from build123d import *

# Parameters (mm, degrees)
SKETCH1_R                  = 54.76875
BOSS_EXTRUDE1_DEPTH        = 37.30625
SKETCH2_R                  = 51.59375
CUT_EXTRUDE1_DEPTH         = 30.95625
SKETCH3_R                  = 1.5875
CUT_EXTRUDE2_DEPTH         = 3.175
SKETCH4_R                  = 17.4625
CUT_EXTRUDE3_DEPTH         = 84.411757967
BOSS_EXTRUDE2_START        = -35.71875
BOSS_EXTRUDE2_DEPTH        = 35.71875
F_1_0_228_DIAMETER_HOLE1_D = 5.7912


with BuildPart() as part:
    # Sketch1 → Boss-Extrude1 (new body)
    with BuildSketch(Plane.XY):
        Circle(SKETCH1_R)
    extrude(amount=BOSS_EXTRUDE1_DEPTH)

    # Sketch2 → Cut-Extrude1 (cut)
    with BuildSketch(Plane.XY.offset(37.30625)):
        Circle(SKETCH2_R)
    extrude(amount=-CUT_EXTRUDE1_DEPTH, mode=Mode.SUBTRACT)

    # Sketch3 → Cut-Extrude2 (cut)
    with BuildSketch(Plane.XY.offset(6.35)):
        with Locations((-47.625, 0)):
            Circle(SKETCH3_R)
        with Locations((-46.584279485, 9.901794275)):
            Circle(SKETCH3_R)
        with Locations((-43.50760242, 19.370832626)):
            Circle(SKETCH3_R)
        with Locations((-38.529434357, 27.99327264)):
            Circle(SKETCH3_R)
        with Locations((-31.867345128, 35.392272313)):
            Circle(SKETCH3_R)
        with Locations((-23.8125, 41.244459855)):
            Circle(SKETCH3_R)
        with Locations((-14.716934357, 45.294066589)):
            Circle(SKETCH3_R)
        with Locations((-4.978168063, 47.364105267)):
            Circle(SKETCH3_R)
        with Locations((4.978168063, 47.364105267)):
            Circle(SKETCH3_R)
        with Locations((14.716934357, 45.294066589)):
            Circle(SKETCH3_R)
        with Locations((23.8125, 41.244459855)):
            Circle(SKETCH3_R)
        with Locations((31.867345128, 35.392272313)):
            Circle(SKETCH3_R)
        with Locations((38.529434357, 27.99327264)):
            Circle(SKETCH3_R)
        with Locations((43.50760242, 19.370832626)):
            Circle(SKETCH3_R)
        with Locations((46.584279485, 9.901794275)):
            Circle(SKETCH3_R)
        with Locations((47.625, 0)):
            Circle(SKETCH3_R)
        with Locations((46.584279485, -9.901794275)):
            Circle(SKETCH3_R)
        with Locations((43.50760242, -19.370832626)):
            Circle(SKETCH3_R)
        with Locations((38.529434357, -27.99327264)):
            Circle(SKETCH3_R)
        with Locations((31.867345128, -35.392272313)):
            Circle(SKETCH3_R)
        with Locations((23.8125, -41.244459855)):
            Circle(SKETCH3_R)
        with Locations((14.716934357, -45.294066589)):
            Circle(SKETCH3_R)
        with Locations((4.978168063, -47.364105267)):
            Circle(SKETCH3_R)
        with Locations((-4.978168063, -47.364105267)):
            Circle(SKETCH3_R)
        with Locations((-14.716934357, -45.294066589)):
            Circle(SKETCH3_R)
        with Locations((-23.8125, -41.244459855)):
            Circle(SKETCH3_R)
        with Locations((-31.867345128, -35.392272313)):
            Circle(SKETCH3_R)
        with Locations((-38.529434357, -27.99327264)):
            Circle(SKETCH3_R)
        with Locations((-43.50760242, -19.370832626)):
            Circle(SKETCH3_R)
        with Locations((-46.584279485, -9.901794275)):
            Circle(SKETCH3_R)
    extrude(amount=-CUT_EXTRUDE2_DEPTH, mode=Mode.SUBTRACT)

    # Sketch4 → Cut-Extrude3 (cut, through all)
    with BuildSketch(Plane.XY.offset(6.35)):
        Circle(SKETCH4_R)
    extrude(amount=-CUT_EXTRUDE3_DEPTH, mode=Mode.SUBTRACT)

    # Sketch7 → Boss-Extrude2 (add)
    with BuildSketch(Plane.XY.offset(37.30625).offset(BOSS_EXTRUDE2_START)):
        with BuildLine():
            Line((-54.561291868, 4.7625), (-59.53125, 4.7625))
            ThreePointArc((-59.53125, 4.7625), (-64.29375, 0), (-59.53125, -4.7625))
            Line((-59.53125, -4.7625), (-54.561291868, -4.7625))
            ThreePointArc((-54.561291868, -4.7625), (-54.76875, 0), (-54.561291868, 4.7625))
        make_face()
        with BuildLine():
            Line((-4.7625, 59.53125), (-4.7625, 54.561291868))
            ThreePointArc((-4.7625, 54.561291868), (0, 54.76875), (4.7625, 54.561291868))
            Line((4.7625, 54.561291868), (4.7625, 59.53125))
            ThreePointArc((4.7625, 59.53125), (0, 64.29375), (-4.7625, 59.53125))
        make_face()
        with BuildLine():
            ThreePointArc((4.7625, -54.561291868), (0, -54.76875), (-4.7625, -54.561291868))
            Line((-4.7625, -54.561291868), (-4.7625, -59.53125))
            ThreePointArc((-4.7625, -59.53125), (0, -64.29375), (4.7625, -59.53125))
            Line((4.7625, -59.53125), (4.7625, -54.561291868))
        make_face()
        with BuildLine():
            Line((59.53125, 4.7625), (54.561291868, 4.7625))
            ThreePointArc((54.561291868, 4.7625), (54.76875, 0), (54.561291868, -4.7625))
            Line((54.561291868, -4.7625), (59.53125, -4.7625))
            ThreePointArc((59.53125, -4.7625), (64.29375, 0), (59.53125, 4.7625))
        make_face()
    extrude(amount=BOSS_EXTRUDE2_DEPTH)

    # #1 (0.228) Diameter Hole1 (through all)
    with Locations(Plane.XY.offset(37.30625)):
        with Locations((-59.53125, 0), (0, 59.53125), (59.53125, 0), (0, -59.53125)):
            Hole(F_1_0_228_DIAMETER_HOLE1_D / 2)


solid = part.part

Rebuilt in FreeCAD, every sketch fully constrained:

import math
import FreeCAD as App
import Part
import Sketcher

V = App.Vector
Q = App.Units.Quantity

doc = App.newDocument("Part")
body = doc.addObject("PartDesign::Body", "Body")

# Sketch on XY plane
sketch1 = body.newObject("Sketcher::SketchObject", "Sketch")
sketch1.AttachmentSupport = (doc.getObject("XY_Plane"), [""])
sketch1.MapMode = "FlatFace"
sketch1.addGeometry(Part.Circle(V(0, 0, 0), V(0, 0, 1), 55), False)
sketch1.addConstraint(Sketcher.Constraint("Coincident", 0, 3, -1, 1))
sketch1.addConstraint(Sketcher.Constraint("Diameter", 0, Q("4.3125 in")))
pad1 = body.newObject("PartDesign::Pad", "Pad")
pad1.Profile = sketch1
pad1.Length = Q("1.46875 in")

# Sketch on XY plane
sketch2 = body.newObject("Sketcher::SketchObject", "Sketch001")
sketch2.AttachmentSupport = (doc.getObject("XY_Plane"), [""])
sketch2.MapMode = "FlatFace"
sketch2.AttachmentOffset = App.Placement(V(0, 0, 1.46875 * 25.4), App.Rotation())
sketch2.addGeometry(Part.Circle(V(0, 0, 0), V(0, 0, 1), 52), False)
sketch2.addConstraint(Sketcher.Constraint("Coincident", 0, 3, -1, 1))
sketch2.addConstraint(Sketcher.Constraint("Diameter", 0, Q("4.0625 in")))
pocket1 = body.newObject("PartDesign::Pocket", "Pocket")
pocket1.Profile = sketch2
pocket1.Length = Q("1.21875 in")

# Sketch on XY plane
sketch3 = body.newObject("Sketcher::SketchObject", "Sketch002")
sketch3.AttachmentSupport = (doc.getObject("XY_Plane"), [""])
sketch3.MapMode = "FlatFace"
sketch3.AttachmentOffset = App.Placement(V(0, 0, 0.25 * 25.4), App.Rotation())
sketch3.addGeometry(Part.Circle(V(-47.6, 0, 0), V(0, 0, 1), 1.6), False)
sketch3.addGeometry(Part.Circle(V(-46.6, 9.9, 0), V(0, 0, 1), 1.6), False)
sketch3.addGeometry(Part.Circle(V(-43.5, 19.4, 0), V(0, 0, 1), 1.6), False)
sketch3.addGeometry(Part.Circle(V(-38.5, 28, 0), V(0, 0, 1), 1.6), False)
sketch3.addGeometry(Part.Circle(V(-31.9, 35.4, 0), V(0, 0, 1), 1.6), False)
sketch3.addGeometry(Part.Circle(V(-23.8, 41.2, 0), V(0, 0, 1), 1.6), False)
sketch3.addGeometry(Part.Circle(V(-14.7, 45.3, 0), V(0, 0, 1), 1.6), False)
sketch3.addGeometry(Part.Circle(V(-5, 47.4, 0), V(0, 0, 1), 1.6), False)
sketch3.addGeometry(Part.Circle(V(5, 47.4, 0), V(0, 0, 1), 1.6), False)
sketch3.addGeometry(Part.Circle(V(14.7, 45.3, 0), V(0, 0, 1), 1.6), False)
sketch3.addGeometry(Part.Circle(V(23.8, 41.2, 0), V(0, 0, 1), 1.6), False)
sketch3.addGeometry(Part.Circle(V(31.9, 35.4, 0), V(0, 0, 1), 1.6), False)
sketch3.addGeometry(Part.Circle(V(38.5, 28, 0), V(0, 0, 1), 1.6), False)
sketch3.addGeometry(Part.Circle(V(43.5, 19.4, 0), V(0, 0, 1), 1.6), False)
sketch3.addGeometry(Part.Circle(V(46.6, 9.9, 0), V(0, 0, 1), 1.6), False)
sketch3.addGeometry(Part.Circle(V(47.6, 0, 0), V(0, 0, 1), 1.6), False)
sketch3.addGeometry(Part.Circle(V(46.6, -9.9, 0), V(0, 0, 1), 1.6), False)
sketch3.addGeometry(Part.Circle(V(43.5, -19.4, 0), V(0, 0, 1), 1.6), False)
sketch3.addGeometry(Part.Circle(V(38.5, -28, 0), V(0, 0, 1), 1.6), False)
sketch3.addGeometry(Part.Circle(V(31.9, -35.4, 0), V(0, 0, 1), 1.6), False)
sketch3.addGeometry(Part.Circle(V(23.8, -41.2, 0), V(0, 0, 1), 1.6), False)
sketch3.addGeometry(Part.Circle(V(14.7, -45.3, 0), V(0, 0, 1), 1.6), False)
sketch3.addGeometry(Part.Circle(V(5, -47.4, 0), V(0, 0, 1), 1.6), False)
sketch3.addGeometry(Part.Circle(V(-5, -47.4, 0), V(0, 0, 1), 1.6), False)
sketch3.addGeometry(Part.Circle(V(-14.7, -45.3, 0), V(0, 0, 1), 1.6), False)
sketch3.addGeometry(Part.Circle(V(-23.8, -41.2, 0), V(0, 0, 1), 1.6), False)
sketch3.addGeometry(Part.Circle(V(-31.9, -35.4, 0), V(0, 0, 1), 1.6), False)
sketch3.addGeometry(Part.Circle(V(-38.5, -28, 0), V(0, 0, 1), 1.6), False)
sketch3.addGeometry(Part.Circle(V(-43.5, -19.4, 0), V(0, 0, 1), 1.6), False)
sketch3.addGeometry(Part.Circle(V(-46.6, -9.9, 0), V(0, 0, 1), 1.6), False)
sketch3.addConstraint(Sketcher.Constraint("Equal", 0, 1))
sketch3.addConstraint(Sketcher.Constraint("Equal", 1, 2))
sketch3.addConstraint(Sketcher.Constraint("Equal", 2, 3))
sketch3.addConstraint(Sketcher.Constraint("Equal", 3, 4))
sketch3.addConstraint(Sketcher.Constraint("Equal", 4, 5))
sketch3.addConstraint(Sketcher.Constraint("Equal", 5, 6))
sketch3.addConstraint(Sketcher.Constraint("Equal", 6, 7))
sketch3.addConstraint(Sketcher.Constraint("Equal", 7, 8))
sketch3.addConstraint(Sketcher.Constraint("Equal", 8, 9))
sketch3.addConstraint(Sketcher.Constraint("Equal", 9, 10))
sketch3.addConstraint(Sketcher.Constraint("Equal", 10, 11))
sketch3.addConstraint(Sketcher.Constraint("Equal", 11, 12))
sketch3.addConstraint(Sketcher.Constraint("Equal", 12, 13))
sketch3.addConstraint(Sketcher.Constraint("Equal", 13, 14))
sketch3.addConstraint(Sketcher.Constraint("Equal", 14, 15))
sketch3.addConstraint(Sketcher.Constraint("Equal", 15, 16))
sketch3.addConstraint(Sketcher.Constraint("Equal", 16, 17))
sketch3.addConstraint(Sketcher.Constraint("Equal", 17, 18))
sketch3.addConstraint(Sketcher.Constraint("Equal", 18, 19))
sketch3.addConstraint(Sketcher.Constraint("Equal", 19, 20))
sketch3.addConstraint(Sketcher.Constraint("Equal", 20, 21))
sketch3.addConstraint(Sketcher.Constraint("Equal", 21, 22))
sketch3.addConstraint(Sketcher.Constraint("Equal", 22, 23))
sketch3.addConstraint(Sketcher.Constraint("Equal", 23, 24))
sketch3.addConstraint(Sketcher.Constraint("Equal", 24, 25))
sketch3.addConstraint(Sketcher.Constraint("Equal", 25, 26))
sketch3.addConstraint(Sketcher.Constraint("Equal", 26, 27))
sketch3.addConstraint(Sketcher.Constraint("Equal", 27, 28))
sketch3.addConstraint(Sketcher.Constraint("Equal", 28, 29))
sketch3.addConstraint(Sketcher.Constraint("Symmetric", 0, 3, 15, 3, -1, 1))
sketch3.addConstraint(Sketcher.Constraint("Symmetric", 1, 3, 16, 3, -1, 1))
sketch3.addConstraint(Sketcher.Constraint("Symmetric", 2, 3, 17, 3, -1, 1))
sketch3.addConstraint(Sketcher.Constraint("Symmetric", 3, 3, 18, 3, -1, 1))
sketch3.addConstraint(Sketcher.Constraint("Symmetric", 4, 3, 19, 3, -1, 1))
sketch3.addConstraint(Sketcher.Constraint("Symmetric", 5, 3, 20, 3, -1, 1))
sketch3.addConstraint(Sketcher.Constraint("Symmetric", 6, 3, 21, 3, -1, 1))
sketch3.addConstraint(Sketcher.Constraint("Symmetric", 7, 3, 22, 3, -1, 1))
sketch3.addConstraint(Sketcher.Constraint("Symmetric", 8, 3, 23, 3, -1, 1))
sketch3.addConstraint(Sketcher.Constraint("Symmetric", 9, 3, 24, 3, -1, 1))
sketch3.addConstraint(Sketcher.Constraint("Symmetric", 10, 3, 25, 3, -1, 1))
sketch3.addConstraint(Sketcher.Constraint("Symmetric", 11, 3, 26, 3, -1, 1))
sketch3.addConstraint(Sketcher.Constraint("Symmetric", 12, 3, 27, 3, -1, 1))
sketch3.addConstraint(Sketcher.Constraint("Symmetric", 13, 3, 28, 3, -1, 1))
sketch3.addConstraint(Sketcher.Constraint("Symmetric", 14, 3, 29, 3, -1, 1))
sketch3.addConstraint(Sketcher.Constraint("Symmetric", 7, 3, 8, 3, -2))
sketch3.addConstraint(Sketcher.Constraint("Symmetric", 6, 3, 9, 3, -2))
sketch3.addConstraint(Sketcher.Constraint("Symmetric", 5, 3, 10, 3, -2))
sketch3.addConstraint(Sketcher.Constraint("Symmetric", 4, 3, 11, 3, -2))
sketch3.addConstraint(Sketcher.Constraint("Symmetric", 3, 3, 12, 3, -2))
sketch3.addConstraint(Sketcher.Constraint("Symmetric", 2, 3, 13, 3, -2))
sketch3.addConstraint(Sketcher.Constraint("Symmetric", 1, 3, 14, 3, -2))
sketch3.addConstraint(Sketcher.Constraint("PointOnObject", 0, 3, -1))
sketch3.addConstraint(Sketcher.Constraint("Diameter", 0, Q("0.125 in")))
sketch3.addConstraint(Sketcher.Constraint("DistanceX", 0, 3, -1, 1, Q("1.875 in")))
sketch3.addConstraint(Sketcher.Constraint("DistanceX", 5, 3, -1, 1, Q("0.9375 in")))
sketch3.addConstraint(Sketcher.Constraint("DistanceX", 3, 3, 6, 3, Q("0.9375 in")))
sketch3.addConstraint(Sketcher.Constraint("DistanceY", 3, 3, 4, 3, 7.399))
sketch3.addConstraint(Sketcher.Constraint("DistanceX", 1, 3, -1, 1, 46.584279))
sketch3.addConstraint(Sketcher.Constraint("DistanceY", -1, 1, 5, 3, 41.24446))
sketch3.addConstraint(Sketcher.Constraint("DistanceX", 7, 3, -1, 1, 4.978168))
sketch3.addConstraint(Sketcher.Constraint("DistanceY", 1, 3, 2, 3, 9.469038))
sketch3.addConstraint(Sketcher.Constraint("DistanceX", 2, 3, 3, 3, 4.978168))
sketch3.addConstraint(Sketcher.Constraint("DistanceY", 2, 3, 3, 3, 8.62244))
sketch3.addConstraint(Sketcher.Constraint("DistanceX", 3, 3, 4, 3, 6.662089))
sketch3.addConstraint(Sketcher.Constraint("DistanceY", 6, 3, 7, 3, 2.070039))
sketch3.addConstraint(Sketcher.Constraint("DistanceX", 6, 3, 9, 3, 29.433869))
sketch3.addConstraint(Sketcher.Constraint("DistanceY", 16, 3, 14, 3, 19.803589))
sketch3.addConstraint(Sketcher.Constraint("DistanceY", -1, 1, 6, 3, 45.294067))
pocket2 = body.newObject("PartDesign::Pocket", "Pocket001")
pocket2.Profile = sketch3
pocket2.Length = Q("0.125 in")

# Sketch on XY plane
sketch4 = body.newObject("Sketcher::SketchObject", "Sketch003")
sketch4.AttachmentSupport = (doc.getObject("XY_Plane"), [""])
sketch4.MapMode = "FlatFace"
sketch4.AttachmentOffset = App.Placement(V(0, 0, 0.25 * 25.4), App.Rotation())
sketch4.addGeometry(Part.Circle(V(0, 0, 0), V(0, 0, 1), 17), False)
sketch4.addConstraint(Sketcher.Constraint("Coincident", 0, 3, -1, 1))
sketch4.addConstraint(Sketcher.Constraint("Diameter", 0, Q("1.375 in")))
pocket3 = body.newObject("PartDesign::Pocket", "Pocket002")
pocket3.Profile = sketch4
pocket3.Type = "ThroughAll"

# Sketch on XY plane
sketch5 = body.newObject("Sketcher::SketchObject", "Sketch004")
sketch5.AttachmentSupport = (doc.getObject("XY_Plane"), [""])
sketch5.MapMode = "FlatFace"
sketch5.AttachmentOffset = App.Placement(V(0, 0, 0.0625 * 25.4), App.Rotation())
sketch5.addGeometry(Part.LineSegment(V(-54.6, 4.8, 0), V(-59.5, 4.8, 0)), False)
sketch5.addGeometry(Part.ArcOfCircle(Part.Circle(V(-59.5, 0, 0), V(0, 0, 1), 4.8), math.radians(90), math.radians(270)), False)
sketch5.addGeometry(Part.LineSegment(V(-59.5, -4.8, 0), V(-54.6, -4.8, 0)), False)
sketch5.addGeometry(Part.ArcOfCircle(Part.Circle(V(0, 0, 0), V(0, 0, 1), 54.8), math.radians(175.01), math.radians(184.99)), False)
sketch5.addGeometry(Part.LineSegment(V(-4.8, 59.5, 0), V(-4.8, 54.6, 0)), False)
sketch5.addGeometry(Part.ArcOfCircle(Part.Circle(V(0, 0, 0), V(0, 0, 1), 54.8), math.radians(85.01), math.radians(94.99)), False)
sketch5.addGeometry(Part.LineSegment(V(4.8, 54.6, 0), V(4.8, 59.5, 0)), False)
sketch5.addGeometry(Part.ArcOfCircle(Part.Circle(V(0, 59.5, 0), V(0, 0, 1), 4.8), math.radians(0), math.radians(180)), False)
sketch5.addGeometry(Part.ArcOfCircle(Part.Circle(V(0, 0, 0), V(0, 0, 1), 54.8), math.radians(-94.99), math.radians(-85.01)), False)
sketch5.addGeometry(Part.LineSegment(V(-4.8, -54.6, 0), V(-4.8, -59.5, 0)), False)
sketch5.addGeometry(Part.ArcOfCircle(Part.Circle(V(0, -59.5, 0), V(0, 0, 1), 4.8), math.radians(180), math.radians(360)), False)
sketch5.addGeometry(Part.LineSegment(V(4.8, -59.5, 0), V(4.8, -54.6, 0)), False)
sketch5.addGeometry(Part.LineSegment(V(59.5, 4.8, 0), V(54.6, 4.8, 0)), False)
sketch5.addGeometry(Part.ArcOfCircle(Part.Circle(V(0, 0, 0), V(0, 0, 1), 54.8), math.radians(-4.99), math.radians(4.99)), False)
sketch5.addGeometry(Part.LineSegment(V(54.6, -4.8, 0), V(59.5, -4.8, 0)), False)
sketch5.addGeometry(Part.ArcOfCircle(Part.Circle(V(59.5, 0, 0), V(0, 0, 1), 4.8), math.radians(-90), math.radians(90)), False)
sketch5.addConstraint(Sketcher.Constraint("Tangent", 0, 2, 1, 1))
sketch5.addConstraint(Sketcher.Constraint("Tangent", 1, 2, 2, 1))
sketch5.addConstraint(Sketcher.Constraint("Coincident", 2, 2, 3, 2))
sketch5.addConstraint(Sketcher.Constraint("Coincident", 3, 1, 0, 1))
sketch5.addConstraint(Sketcher.Constraint("Coincident", 4, 2, 5, 2))
sketch5.addConstraint(Sketcher.Constraint("Coincident", 5, 1, 6, 1))
sketch5.addConstraint(Sketcher.Constraint("Tangent", 6, 2, 7, 1))
sketch5.addConstraint(Sketcher.Constraint("Tangent", 7, 2, 4, 1))
sketch5.addConstraint(Sketcher.Constraint("Coincident", 8, 1, 9, 1))
sketch5.addConstraint(Sketcher.Constraint("Tangent", 9, 2, 10, 1))
sketch5.addConstraint(Sketcher.Constraint("Tangent", 10, 2, 11, 1))
sketch5.addConstraint(Sketcher.Constraint("Coincident", 11, 2, 8, 2))
sketch5.addConstraint(Sketcher.Constraint("Coincident", 12, 2, 13, 2))
sketch5.addConstraint(Sketcher.Constraint("Coincident", 13, 1, 14, 1))
sketch5.addConstraint(Sketcher.Constraint("Tangent", 14, 2, 15, 1))
sketch5.addConstraint(Sketcher.Constraint("Tangent", 15, 2, 12, 1))
sketch5.addConstraint(Sketcher.Constraint("Horizontal", 0))
sketch5.addConstraint(Sketcher.Constraint("Horizontal", 2))
sketch5.addConstraint(Sketcher.Constraint("Vertical", 4))
sketch5.addConstraint(Sketcher.Constraint("Vertical", 6))
sketch5.addConstraint(Sketcher.Constraint("Vertical", 9))
sketch5.addConstraint(Sketcher.Constraint("Vertical", 11))
sketch5.addConstraint(Sketcher.Constraint("Horizontal", 12))
sketch5.addConstraint(Sketcher.Constraint("Horizontal", 14))
sketch5.addConstraint(Sketcher.Constraint("Coincident", 3, 3, -1, 1))
sketch5.addConstraint(Sketcher.Constraint("Coincident", 5, 3, -1, 1))
sketch5.addConstraint(Sketcher.Constraint("Coincident", 8, 3, -1, 1))
sketch5.addConstraint(Sketcher.Constraint("Coincident", 13, 3, -1, 1))
sketch5.addConstraint(Sketcher.Constraint("Equal", 3, 5))
sketch5.addConstraint(Sketcher.Constraint("Equal", 1, 7))
sketch5.addConstraint(Sketcher.Constraint("Equal", 5, 8))
sketch5.addConstraint(Sketcher.Constraint("Equal", 7, 10))
sketch5.addConstraint(Sketcher.Constraint("Equal", 8, 13))
sketch5.addConstraint(Sketcher.Constraint("Equal", 10, 15))
sketch5.addConstraint(Sketcher.Constraint("Symmetric", 7, 3, 10, 3, -1, 1))
sketch5.addConstraint(Sketcher.Constraint("Symmetric", 1, 3, 15, 3, -1, 1))
sketch5.addConstraint(Sketcher.Constraint("PointOnObject", 1, 3, -1))
sketch5.addConstraint(Sketcher.Constraint("PointOnObject", 7, 3, -2))
sketch5.addConstraint(Sketcher.Constraint("Equal", 14, 4))
sketch5.addConstraint(Sketcher.Constraint("Radius", 1, Q("0.1875 in")))
sketch5.addConstraint(Sketcher.Constraint("Radius", 3, Q("2.15625 in")))
sketch5.addConstraint(Sketcher.Constraint("DistanceX", 1, 3, -1, 1, Q("2.34375 in")))
pad2 = body.newObject("PartDesign::Pad", "Pad001")
pad2.Profile = sketch5
pad2.Length = Q("1.40625 in")

# Sketch on XY plane
sketch6 = body.newObject("Sketcher::SketchObject", "Sketch005")
sketch6.AttachmentSupport = (doc.getObject("XY_Plane"), [""])
sketch6.MapMode = "FlatFace"
sketch6.AttachmentOffset = App.Placement(V(0, 0, 1.46875 * 25.4), App.Rotation())
sketch6.addGeometry(Part.Circle(V(-59.5, 0, 0), V(0, 0, 1), 2.9), False)
sketch6.addGeometry(Part.Circle(V(0, 59.5, 0), V(0, 0, 1), 2.9), False)
sketch6.addGeometry(Part.Circle(V(59.5, 0, 0), V(0, 0, 1), 2.9), False)
sketch6.addGeometry(Part.Circle(V(0, -59.5, 0), V(0, 0, 1), 2.9), False)
sketch6.addConstraint(Sketcher.Constraint("Equal", 0, 1))
sketch6.addConstraint(Sketcher.Constraint("Equal", 1, 2))
sketch6.addConstraint(Sketcher.Constraint("Equal", 2, 3))
sketch6.addConstraint(Sketcher.Constraint("Symmetric", 0, 3, 2, 3, -1, 1))
sketch6.addConstraint(Sketcher.Constraint("Symmetric", 1, 3, 3, 3, -1, 1))
sketch6.addConstraint(Sketcher.Constraint("PointOnObject", 0, 3, -1))
sketch6.addConstraint(Sketcher.Constraint("PointOnObject", 1, 3, -2))
sketch6.addConstraint(Sketcher.Constraint("Diameter", 0, Q("0.228 in")))
sketch6.addConstraint(Sketcher.Constraint("DistanceX", 0, 3, -1, 1, Q("2.34375 in")))
sketch6.addConstraint(Sketcher.Constraint("DistanceY", -1, 1, 1, 3, Q("2.34375 in")))
doc.recompute()
hole = body.newObject("PartDesign::Hole", "Hole")
hole.Profile = sketch6
hole.ThreadType = "None"
hole.Diameter = Q("0.228 in")
hole.DepthType = "ThroughAll"

doc.recompute()
